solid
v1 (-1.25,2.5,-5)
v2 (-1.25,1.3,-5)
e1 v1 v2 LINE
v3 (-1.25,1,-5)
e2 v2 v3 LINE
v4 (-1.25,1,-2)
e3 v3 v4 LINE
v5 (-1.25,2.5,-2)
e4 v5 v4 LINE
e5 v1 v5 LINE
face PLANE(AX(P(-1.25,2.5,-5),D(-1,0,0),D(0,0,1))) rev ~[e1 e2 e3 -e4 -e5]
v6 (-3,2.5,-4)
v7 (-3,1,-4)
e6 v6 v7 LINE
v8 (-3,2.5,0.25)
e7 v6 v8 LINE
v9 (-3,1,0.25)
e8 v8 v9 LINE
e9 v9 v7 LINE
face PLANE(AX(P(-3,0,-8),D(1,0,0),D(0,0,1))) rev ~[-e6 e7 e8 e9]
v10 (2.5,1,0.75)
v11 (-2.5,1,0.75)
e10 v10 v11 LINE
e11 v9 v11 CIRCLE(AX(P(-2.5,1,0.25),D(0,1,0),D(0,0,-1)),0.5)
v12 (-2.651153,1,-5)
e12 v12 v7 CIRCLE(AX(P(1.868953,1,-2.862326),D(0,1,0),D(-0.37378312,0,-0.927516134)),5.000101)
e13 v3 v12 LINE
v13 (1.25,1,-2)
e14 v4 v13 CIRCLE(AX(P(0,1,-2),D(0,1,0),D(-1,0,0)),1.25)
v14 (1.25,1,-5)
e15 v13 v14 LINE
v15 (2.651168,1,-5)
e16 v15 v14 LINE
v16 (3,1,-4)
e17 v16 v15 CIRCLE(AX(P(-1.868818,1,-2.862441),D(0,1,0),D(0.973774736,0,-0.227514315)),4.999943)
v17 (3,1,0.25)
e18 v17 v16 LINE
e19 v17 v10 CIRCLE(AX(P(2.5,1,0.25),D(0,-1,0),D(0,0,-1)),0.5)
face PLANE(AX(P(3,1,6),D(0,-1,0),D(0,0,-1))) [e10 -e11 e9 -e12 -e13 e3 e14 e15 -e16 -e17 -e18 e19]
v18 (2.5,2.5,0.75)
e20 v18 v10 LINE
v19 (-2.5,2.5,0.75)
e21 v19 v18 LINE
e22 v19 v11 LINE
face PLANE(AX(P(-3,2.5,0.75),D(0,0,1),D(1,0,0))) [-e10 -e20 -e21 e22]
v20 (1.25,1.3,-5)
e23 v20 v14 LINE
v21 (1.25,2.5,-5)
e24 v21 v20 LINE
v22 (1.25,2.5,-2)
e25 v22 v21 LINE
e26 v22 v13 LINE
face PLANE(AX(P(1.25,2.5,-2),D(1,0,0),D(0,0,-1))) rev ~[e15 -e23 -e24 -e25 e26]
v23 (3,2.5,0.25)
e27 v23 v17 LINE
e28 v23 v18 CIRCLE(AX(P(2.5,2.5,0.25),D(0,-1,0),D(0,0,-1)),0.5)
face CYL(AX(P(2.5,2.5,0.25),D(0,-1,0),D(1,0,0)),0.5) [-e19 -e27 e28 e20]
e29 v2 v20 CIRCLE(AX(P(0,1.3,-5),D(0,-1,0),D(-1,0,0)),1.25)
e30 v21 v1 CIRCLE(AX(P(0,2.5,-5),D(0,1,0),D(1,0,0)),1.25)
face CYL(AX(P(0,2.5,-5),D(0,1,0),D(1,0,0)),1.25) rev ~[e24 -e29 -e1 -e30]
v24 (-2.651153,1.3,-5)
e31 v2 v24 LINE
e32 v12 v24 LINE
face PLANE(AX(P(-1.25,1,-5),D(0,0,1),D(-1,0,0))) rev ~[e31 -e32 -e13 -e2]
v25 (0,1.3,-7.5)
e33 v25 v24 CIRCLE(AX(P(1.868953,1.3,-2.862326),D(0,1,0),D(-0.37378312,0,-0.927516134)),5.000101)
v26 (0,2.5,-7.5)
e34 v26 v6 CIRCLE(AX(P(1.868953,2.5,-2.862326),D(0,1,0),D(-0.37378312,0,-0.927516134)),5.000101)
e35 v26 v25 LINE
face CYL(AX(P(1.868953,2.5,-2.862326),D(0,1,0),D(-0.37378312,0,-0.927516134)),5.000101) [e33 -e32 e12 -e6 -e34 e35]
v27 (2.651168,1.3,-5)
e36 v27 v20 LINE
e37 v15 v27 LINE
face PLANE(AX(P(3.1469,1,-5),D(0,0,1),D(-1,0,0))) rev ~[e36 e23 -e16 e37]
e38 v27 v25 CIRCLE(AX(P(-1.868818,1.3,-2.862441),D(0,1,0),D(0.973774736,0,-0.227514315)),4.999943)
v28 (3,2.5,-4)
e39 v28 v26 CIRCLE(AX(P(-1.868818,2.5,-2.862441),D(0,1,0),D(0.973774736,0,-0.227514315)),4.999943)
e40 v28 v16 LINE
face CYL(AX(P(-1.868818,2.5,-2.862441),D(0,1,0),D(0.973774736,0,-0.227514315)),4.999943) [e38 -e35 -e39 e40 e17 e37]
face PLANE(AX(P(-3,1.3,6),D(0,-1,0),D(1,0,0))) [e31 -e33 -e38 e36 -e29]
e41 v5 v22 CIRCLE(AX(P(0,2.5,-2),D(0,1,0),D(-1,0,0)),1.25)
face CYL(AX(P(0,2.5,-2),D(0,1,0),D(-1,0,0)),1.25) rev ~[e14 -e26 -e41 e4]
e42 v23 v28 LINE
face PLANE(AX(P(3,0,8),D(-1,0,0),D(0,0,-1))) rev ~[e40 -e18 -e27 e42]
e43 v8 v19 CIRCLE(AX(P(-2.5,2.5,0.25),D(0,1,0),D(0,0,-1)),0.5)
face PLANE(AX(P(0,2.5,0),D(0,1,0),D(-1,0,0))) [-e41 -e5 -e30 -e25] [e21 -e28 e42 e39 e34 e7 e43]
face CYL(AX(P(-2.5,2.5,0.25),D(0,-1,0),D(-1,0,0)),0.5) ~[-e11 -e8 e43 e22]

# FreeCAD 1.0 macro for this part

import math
import FreeCAD as App
import Part
import Sketcher

V = App.Vector


def edges_at(feature, points):
    """Names of the edges that pass closest to the given points."""
    edges = feature.Shape.Edges
    near = lambda p: min(range(len(edges)), key=lambda i: edges[i].distToShape(Part.Vertex(*p))[0])
    return sorted({f"Edge{near(p) + 1}" for p in points})


def add_polygon(sketch, points):
    """Adds a closed chain of lines whose ends are joined by coincident constraints."""
    first, n = sketch.GeometryCount, len(points)
    for a, b in zip(points, points[1:] + points[:1]):
        sketch.addGeometry(Part.LineSegment(App.Vector(*a, 0), App.Vector(*b, 0)), False)
    for i in range(n):
        sketch.addConstraint(Sketcher.Constraint("Coincident", first + i, 2, first + (i + 1) % n, 1))

doc = App.newDocument("Part")
body = doc.addObject("PartDesign::Body", "Body")

# Sketch on XZ plane
sketch1 = body.newObject("Sketcher::SketchObject", "Sketch")
sketch1.AttachmentSupport = (doc.getObject("XZ_Plane"), [""])
sketch1.MapMode = "FlatFace"
add_polygon(sketch1, [(3, 8), (3, -8), (-3, -8), (-3, 8)])  # lines 0-3
sketch1.addConstraint(Sketcher.Constraint("Vertical", 0))
sketch1.addConstraint(Sketcher.Constraint("Horizontal", 1))
sketch1.addConstraint(Sketcher.Constraint("Vertical", 2))
sketch1.addConstraint(Sketcher.Constraint("Horizontal", 3))
sketch1.addConstraint(Sketcher.Constraint("Symmetric", 0, 2, 2, 2, -1, 1))
sketch1.addConstraint(Sketcher.Constraint("DistanceX", 1, 2, 1, 1, 6.0))
sketch1.addConstraint(Sketcher.Constraint("DistanceY", 0, 2, 0, 1, 16.0))
pad1 = body.newObject("PartDesign::Pad", "Pad")
pad1.Profile = sketch1
pad1.Length = 2.5
pad1.Reversed = True

# Sketch on XZ plane
sketch2 = body.newObject("Sketcher::SketchObject", "Sketch001")
sketch2.AttachmentSupport = (doc.getObject("XZ_Plane"), [""])
sketch2.MapMode = "FlatFace"
sketch2.AttachmentOffset = App.Placement(V(0, 0, -2.5), App.Rotation())
sketch2.addGeometry(Part.ArcOfCircle(Part.Circle(V(0, -5, 0), V(0, 0, 1), 1.2), math.radians(180), math.radians(360)), False)
sketch2.addGeometry(Part.LineSegment(V(-1.2, -5, 0), V(-1.2, -2, 0)), False)
sketch2.addGeometry(Part.ArcOfCircle(Part.Circle(V(0, -2, 0), V(0, 0, 1), 1.2), math.radians(0), math.radians(180)), False)
sketch2.addGeometry(Part.LineSegment(V(1.2, -2, 0), V(1.2, -5, 0)), False)
sketch2.addConstraint(Sketcher.Constraint("Tangent", 0, 1, 1, 1))
sketch2.addConstraint(Sketcher.Constraint("Tangent", 1, 2, 2, 2))
sketch2.addConstraint(Sketcher.Constraint("Tangent", 2, 1, 3, 1))
sketch2.addConstraint(Sketcher.Constraint("Tangent", 3, 2, 0, 2))
sketch2.addConstraint(Sketcher.Constraint("Vertical", 1))
sketch2.addConstraint(Sketcher.Constraint("Vertical", 3))
sketch2.addConstraint(Sketcher.Constraint("PointOnObject", 0, 3, -2))
sketch2.addConstraint(Sketcher.Constraint("DistanceY", 1, 1, 1, 2, 3.0))
sketch2.addConstraint(Sketcher.Constraint("Radius", 0, 1.25))
sketch2.addConstraint(Sketcher.Constraint("DistanceY", 0, 3, -1, 1, 5.0))
pocket1 = body.newObject("PartDesign::Pocket", "Pocket")
pocket1.Profile = sketch2
pocket1.Type = "ThroughAll"
pocket1.Reversed = True

# Sketch on YZ plane
sketch3 = body.newObject("Sketcher::SketchObject", "Sketch002")
sketch3.AttachmentSupport = (doc.getObject("YZ_Plane"), [""])
sketch3.MapMode = "FlatFace"
sketch3.AttachmentOffset = App.Placement(V(0, 0, 3), App.Rotation())
add_polygon(sketch3, [(0, 6), (0, -8), (1, -8), (1, 6)])  # lines 0-3
sketch3.addConstraint(Sketcher.Constraint("Vertical", 0))
sketch3.addConstraint(Sketcher.Constraint("Horizontal", 1))
sketch3.addConstraint(Sketcher.Constraint("Vertical", 2))
sketch3.addConstraint(Sketcher.Constraint("Horizontal", 3))
sketch3.addConstraint(Sketcher.Constraint("PointOnObject", 0, 2, -2))
sketch3.addConstraint(Sketcher.Constraint("DistanceX", 1, 1, 1, 2, 1.0))
sketch3.addConstraint(Sketcher.Constraint("DistanceY", 0, 2, 0, 1, 14.0))
sketch3.addConstraint(Sketcher.Constraint("DistanceY", 0, 2, -1, 1, 8.0))
pocket2 = body.newObject("PartDesign::Pocket", "Pocket001")
pocket2.Profile = sketch3
pocket2.Type = "ThroughAll"

# Sketch on XZ plane
sketch4 = body.newObject("Sketcher::SketchObject", "Sketch003")
sketch4.AttachmentSupport = (doc.getObject("XZ_Plane"), [""])
sketch4.MapMode = "FlatFace"
sketch4.AttachmentOffset = App.Placement(V(0, 0, -2.5), App.Rotation())
sketch4.addGeometry(Part.ArcOfCircle(Part.Circle(V(0, 4.8, 0), V(0, 0, 1), 3.2), math.radians(90), math.radians(157)), False)
sketch4.addGeometry(Part.LineSegment(V(-3, 6, 0), V(-3, 8, 0)), False)
sketch4.addGeometry(Part.LineSegment(V(-3, 8, 0), V(0, 8, 0)), False)
sketch4.addGeometry(Part.ArcOfCircle(Part.Circle(V(0, 4.8, 0), V(0, 0, 1), 3.2), math.radians(23), math.radians(90)), False)
sketch4.addGeometry(Part.LineSegment(V(0, 8, 0), V(3, 8, 0)), False)
sketch4.addGeometry(Part.LineSegment(V(3, 8, 0), V(3, 6, 0)), False)
sketch4.addConstraint(Sketcher.Constraint("Coincident", 0, 2, 1, 1))
sketch4.addConstraint(Sketcher.Constraint("Coincident", 1, 2, 2, 1))
sketch4.addConstraint(Sketcher.Constraint("Tangent", 2, 2, 0, 1))
sketch4.addConstraint(Sketcher.Constraint("Tangent", 3, 2, 4, 1))
sketch4.addConstraint(Sketcher.Constraint("Coincident", 4, 2, 5, 1))
sketch4.addConstraint(Sketcher.Constraint("Coincident", 5, 2, 3, 1))
sketch4.addConstraint(Sketcher.Constraint("Vertical", 1))
sketch4.addConstraint(Sketcher.Constraint("Horizontal", 2))
sketch4.addConstraint(Sketcher.Constraint("Horizontal", 4))
sketch4.addConstraint(Sketcher.Constraint("Vertical", 5))
sketch4.addConstraint(Sketcher.Constraint("Coincident", 3, 3, 0, 3))
sketch4.addConstraint(Sketcher.Constraint("Equal", 0, 3))
sketch4.addConstraint(Sketcher.Constraint("Symmetric", 0, 2, 5, 2, -2))
sketch4.addConstraint(Sketcher.Constraint("DistanceY", 1, 1, 1, 2, 2.0))
sketch4.addConstraint(Sketcher.Constraint("DistanceX", 2, 1, 2, 2, 3.0))
sketch4.addConstraint(Sketcher.Constraint("DistanceY", -1, 1, 0, 2, 6.0))
pocket3 = body.newObject("PartDesign::Pocket", "Pocket002")
pocket3.Profile = sketch4
pocket3.Type = "ThroughAll"
pocket3.Reversed = True

# Sketch on XZ plane
sketch5 = body.newObject("Sketcher::SketchObject", "Sketch004")
sketch5.AttachmentSupport = (doc.getObject("XZ_Plane"), [""])
sketch5.MapMode = "FlatFace"
sketch5.AttachmentOffset = App.Placement(V(0, 0, -2.5), App.Rotation())
sketch5.addGeometry(Part.ArcOfCircle(Part.Circle(V(-1.9, -2.9, 0), V(0, 0, 1), 5), math.radians(-68), math.radians(-13)), False)
sketch5.addGeometry(Part.LineSegment(V(3, -4, 0), V(3, -8, 0)), False)
sketch5.addGeometry(Part.LineSegment(V(3, -8, 0), V(-3, -8, 0)), False)
sketch5.addGeometry(Part.LineSegment(V(-3, -8, 0), V(-3, -4, 0)), False)
sketch5.addGeometry(Part.ArcOfCircle(Part.Circle(V(1.9, -2.9, 0), V(0, 0, 1), 5), math.radians(-167), math.radians(-112)), False)
sketch5.addConstraint(Sketcher.Constraint("Coincident", 0, 2, 1, 1))
sketch5.addConstraint(Sketcher.Constraint("Coincident", 1, 2, 2, 1))
sketch5.addConstraint(Sketcher.Constraint("Coincident", 2, 2, 3, 1))
sketch5.addConstraint(Sketcher.Constraint("Coincident", 3, 2, 4, 1))
sketch5.addConstraint(Sketcher.Constraint("Coincident", 4, 2, 0, 1))
sketch5.addConstraint(Sketcher.Constraint("Vertical", 1))
sketch5.addConstraint(Sketcher.Constraint("Horizontal", 2))
sketch5.addConstraint(Sketcher.Constraint("Vertical", 3))
sketch5.addConstraint(Sketcher.Constraint("Equal", 0, 4))
sketch5.addConstraint(Sketcher.Constraint("Symmetric", 0, 3, 4, 3, -2))
sketch5.addConstraint(Sketcher.Constraint("Horizontal", 0, 2, 3, 2))
sketch5.addConstraint(Sketcher.Constraint("Radius", 0, 5.0))
sketch5.addConstraint(Sketcher.Constraint("DistanceY", 1, 2, 1, 1, 4.0))
sketch5.addConstraint(Sketcher.Constraint("DistanceY", 0, 2, -1, 1, 4.0))
sketch5.addConstraint(Sketcher.Constraint("DistanceY", 2, 2, 4, 2, 0.5))
sketch5.addConstraint(Sketcher.Constraint("DistanceX", 2, 2, 2, 1, 6.0))
pocket4 = body.newObject("PartDesign::Pocket", "Pocket003")
pocket4.Profile = sketch5
pocket4.Type = "ThroughAll"
pocket4.Reversed = True

# Sketch on XZ plane
sketch6 = body.newObject("Sketcher::SketchObject", "Sketch005")
sketch6.AttachmentSupport = (doc.getObject("XZ_Plane"), [""])
sketch6.MapMode = "FlatFace"
sketch6.AttachmentOffset = App.Placement(V(0, 0, -1), App.Rotation())
sketch6.addGeometry(Part.LineSegment(V(3.1, -7.5, 0), V(3.1, -5, 0)), False)
sketch6.addGeometry(Part.LineSegment(V(3.1, -5, 0), V(1.2, -5, 0)), False)
sketch6.addGeometry(Part.ArcOfCircle(Part.Circle(V(0, -5, 0), V(0, 0, 1), 1.2), math.radians(180), math.radians(360)), False)
sketch6.addGeometry(Part.LineSegment(V(-1.2, -5, 0), V(-3, -5, 0)), False)
sketch6.addGeometry(Part.LineSegment(V(-3, -5, 0), V(-3, -7.5, 0)), False)
sketch6.addGeometry(Part.LineSegment(V(-3, -7.5, 0), V(3.1, -7.5, 0)), False)
sketch6.addConstraint(Sketcher.Constraint("Coincident", 0, 2, 1, 1))
sketch6.addConstraint(Sketcher.Constraint("Coincident", 1, 2, 2, 2))
sketch6.addConstraint(Sketcher.Constraint("Coincident", 2, 1, 3, 1))
sketch6.addConstraint(Sketcher.Constraint("Coincident", 3, 2, 4, 1))
sketch6.addConstraint(Sketcher.Constraint("Coincident", 4, 2, 5, 1))
sketch6.addConstraint(Sketcher.Constraint("Coincident", 5, 2, 0, 1))
sketch6.addConstraint(Sketcher.Constraint("Vertical", 0))
sketch6.addConstraint(Sketcher.Constraint("Horizontal", 1))
sketch6.addConstraint(Sketcher.Constraint("Horizontal", 3))
sketch6.addConstraint(Sketcher.Constraint("Vertical", 4))
sketch6.addConstraint(Sketcher.Constraint("Horizontal", 5))
sketch6.addConstraint(Sketcher.Constraint("Symmetric", 1, 2, 2, 1, -2))
sketch6.addConstraint(Sketcher.Constraint("Horizontal", 2, 3, 0, 2))
sketch6.addConstraint(Sketcher.Constraint("Radius", 2, 1.25))
sketch6.addConstraint(Sketcher.Constraint("DistanceY", 0, 1, 0, 2, 2.5))
sketch6.addConstraint(Sketcher.Constraint("DistanceY", 2, 3, -1, 1, 5.0))
sketch6.addConstraint(Sketcher.Constraint("DistanceX", 3, 2, 3, 1, 1.78))
sketch6.addConstraint(Sketcher.Constraint("DistanceX", 1, 2, 1, 1, 1.897))
pocket5 = body.newObject("PartDesign::Pocket", "Pocket004")
pocket5.Profile = sketch6
pocket5.Length = 0.3

# Sketch on XZ plane
sketch7 = body.newObject("Sketcher::SketchObject", "Sketch006")
sketch7.AttachmentSupport = (doc.getObject("XZ_Plane"), [""])
sketch7.MapMode = "FlatFace"
sketch7.AttachmentOffset = App.Placement(V(0, 0, -2.5), App.Rotation())
sketch7.addGeometry(Part.ArcOfCircle(Part.Circle(V(0, 4.8, 0), V(0, 0, 1), 3.2), math.radians(23), math.radians(157)), False)
sketch7.addGeometry(Part.LineSegment(V(3, 6, 0), V(3, 4.2, 0)), False)
sketch7.addGeometry(Part.LineSegment(V(3, 4.2, 0), V(-3, 4.2, 0)), False)
sketch7.addGeometry(Part.LineSegment(V(-3, 4.2, 0), V(-3, 6, 0)), False)
sketch7.addConstraint(Sketcher.Constraint("Coincident", 0, 1, 1, 1))
sketch7.addConstraint(Sketcher.Constraint("Coincident", 1, 2, 2, 1))
sketch7.addConstraint(Sketcher.Constraint("Coincident", 2, 2, 3, 1))
sketch7.addConstraint(Sketcher.Constraint("Coincident", 3, 2, 0, 2))
sketch7.addConstraint(Sketcher.Constraint("Vertical", 1))
sketch7.addConstraint(Sketcher.Constraint("Horizontal", 2))
sketch7.addConstraint(Sketcher.Constraint("Vertical", 3))
sketch7.addConstraint(Sketcher.Constraint("Symmetric", 0, 1, 3, 2, -2))
sketch7.addConstraint(Sketcher.Constraint("DistanceX", 2, 2, 2, 1, 6.0))
sketch7.addConstraint(Sketcher.Constraint("Radius", 0, 3.25))
sketch7.addConstraint(Sketcher.Constraint("DistanceY", -1, 1, 0, 1, 6.0))
sketch7.addConstraint(Sketcher.Constraint("DistanceY", 1, 2, 1, 1, 1.75))
pocket6 = body.newObject("PartDesign::Pocket", "Pocket005")
pocket6.Profile = sketch7
pocket6.Type = "ThroughAll"
pocket6.Reversed = True
doc.recompute()

fillet = body.newObject("PartDesign::Fillet", "Fillet")
fillet.Base = (pocket6, edges_at(pocket6, [(3, 1.75, 4.25), (-3, 1.75, 4.25)]))
fillet.Radius = 2

# Sketch on XZ plane
sketch8 = body.newObject("Sketcher::SketchObject", "Sketch007")
sketch8.AttachmentSupport = (doc.getObject("XZ_Plane"), [""])
sketch8.MapMode = "FlatFace"
sketch8.AttachmentOffset = App.Placement(V(0, 0, -2.5), App.Rotation())
add_polygon(sketch8, [(-3, 4.2), (3, 4.2), (3, 0.8), (-3, 0.8)])  # lines 0-3
sketch8.addConstraint(Sketcher.Constraint("Horizontal", 0))
sketch8.addConstraint(Sketcher.Constraint("Vertical", 1))
sketch8.addConstraint(Sketcher.Constraint("Horizontal", 2))
sketch8.addConstraint(Sketcher.Constraint("Vertical", 3))
sketch8.addConstraint(Sketcher.Constraint("DistanceX", 0, 1, 0, 2, 6.0))
sketch8.addConstraint(Sketcher.Constraint("DistanceY", 1, 2, 1, 1, 3.5))
sketch8.addConstraint(Sketcher.Constraint("DistanceX", -1, 1, 0, 2, 3.0))
sketch8.addConstraint(Sketcher.Constraint("DistanceY", -1, 1, 0, 2, 4.25))
pocket7 = body.newObject("PartDesign::Pocket", "Pocket006")
pocket7.Profile = sketch8
pocket7.Type = "ThroughAll"
pocket7.Reversed = True
doc.recompute()

fillet2 = body.newObject("PartDesign::Fillet", "Fillet001")
fillet2.Base = (pocket7, edges_at(pocket7, [(3, 1.75, 0.75), (-3, 1.75, 0.75)]))
fillet2.Radius = 0.5

doc.recompute()
